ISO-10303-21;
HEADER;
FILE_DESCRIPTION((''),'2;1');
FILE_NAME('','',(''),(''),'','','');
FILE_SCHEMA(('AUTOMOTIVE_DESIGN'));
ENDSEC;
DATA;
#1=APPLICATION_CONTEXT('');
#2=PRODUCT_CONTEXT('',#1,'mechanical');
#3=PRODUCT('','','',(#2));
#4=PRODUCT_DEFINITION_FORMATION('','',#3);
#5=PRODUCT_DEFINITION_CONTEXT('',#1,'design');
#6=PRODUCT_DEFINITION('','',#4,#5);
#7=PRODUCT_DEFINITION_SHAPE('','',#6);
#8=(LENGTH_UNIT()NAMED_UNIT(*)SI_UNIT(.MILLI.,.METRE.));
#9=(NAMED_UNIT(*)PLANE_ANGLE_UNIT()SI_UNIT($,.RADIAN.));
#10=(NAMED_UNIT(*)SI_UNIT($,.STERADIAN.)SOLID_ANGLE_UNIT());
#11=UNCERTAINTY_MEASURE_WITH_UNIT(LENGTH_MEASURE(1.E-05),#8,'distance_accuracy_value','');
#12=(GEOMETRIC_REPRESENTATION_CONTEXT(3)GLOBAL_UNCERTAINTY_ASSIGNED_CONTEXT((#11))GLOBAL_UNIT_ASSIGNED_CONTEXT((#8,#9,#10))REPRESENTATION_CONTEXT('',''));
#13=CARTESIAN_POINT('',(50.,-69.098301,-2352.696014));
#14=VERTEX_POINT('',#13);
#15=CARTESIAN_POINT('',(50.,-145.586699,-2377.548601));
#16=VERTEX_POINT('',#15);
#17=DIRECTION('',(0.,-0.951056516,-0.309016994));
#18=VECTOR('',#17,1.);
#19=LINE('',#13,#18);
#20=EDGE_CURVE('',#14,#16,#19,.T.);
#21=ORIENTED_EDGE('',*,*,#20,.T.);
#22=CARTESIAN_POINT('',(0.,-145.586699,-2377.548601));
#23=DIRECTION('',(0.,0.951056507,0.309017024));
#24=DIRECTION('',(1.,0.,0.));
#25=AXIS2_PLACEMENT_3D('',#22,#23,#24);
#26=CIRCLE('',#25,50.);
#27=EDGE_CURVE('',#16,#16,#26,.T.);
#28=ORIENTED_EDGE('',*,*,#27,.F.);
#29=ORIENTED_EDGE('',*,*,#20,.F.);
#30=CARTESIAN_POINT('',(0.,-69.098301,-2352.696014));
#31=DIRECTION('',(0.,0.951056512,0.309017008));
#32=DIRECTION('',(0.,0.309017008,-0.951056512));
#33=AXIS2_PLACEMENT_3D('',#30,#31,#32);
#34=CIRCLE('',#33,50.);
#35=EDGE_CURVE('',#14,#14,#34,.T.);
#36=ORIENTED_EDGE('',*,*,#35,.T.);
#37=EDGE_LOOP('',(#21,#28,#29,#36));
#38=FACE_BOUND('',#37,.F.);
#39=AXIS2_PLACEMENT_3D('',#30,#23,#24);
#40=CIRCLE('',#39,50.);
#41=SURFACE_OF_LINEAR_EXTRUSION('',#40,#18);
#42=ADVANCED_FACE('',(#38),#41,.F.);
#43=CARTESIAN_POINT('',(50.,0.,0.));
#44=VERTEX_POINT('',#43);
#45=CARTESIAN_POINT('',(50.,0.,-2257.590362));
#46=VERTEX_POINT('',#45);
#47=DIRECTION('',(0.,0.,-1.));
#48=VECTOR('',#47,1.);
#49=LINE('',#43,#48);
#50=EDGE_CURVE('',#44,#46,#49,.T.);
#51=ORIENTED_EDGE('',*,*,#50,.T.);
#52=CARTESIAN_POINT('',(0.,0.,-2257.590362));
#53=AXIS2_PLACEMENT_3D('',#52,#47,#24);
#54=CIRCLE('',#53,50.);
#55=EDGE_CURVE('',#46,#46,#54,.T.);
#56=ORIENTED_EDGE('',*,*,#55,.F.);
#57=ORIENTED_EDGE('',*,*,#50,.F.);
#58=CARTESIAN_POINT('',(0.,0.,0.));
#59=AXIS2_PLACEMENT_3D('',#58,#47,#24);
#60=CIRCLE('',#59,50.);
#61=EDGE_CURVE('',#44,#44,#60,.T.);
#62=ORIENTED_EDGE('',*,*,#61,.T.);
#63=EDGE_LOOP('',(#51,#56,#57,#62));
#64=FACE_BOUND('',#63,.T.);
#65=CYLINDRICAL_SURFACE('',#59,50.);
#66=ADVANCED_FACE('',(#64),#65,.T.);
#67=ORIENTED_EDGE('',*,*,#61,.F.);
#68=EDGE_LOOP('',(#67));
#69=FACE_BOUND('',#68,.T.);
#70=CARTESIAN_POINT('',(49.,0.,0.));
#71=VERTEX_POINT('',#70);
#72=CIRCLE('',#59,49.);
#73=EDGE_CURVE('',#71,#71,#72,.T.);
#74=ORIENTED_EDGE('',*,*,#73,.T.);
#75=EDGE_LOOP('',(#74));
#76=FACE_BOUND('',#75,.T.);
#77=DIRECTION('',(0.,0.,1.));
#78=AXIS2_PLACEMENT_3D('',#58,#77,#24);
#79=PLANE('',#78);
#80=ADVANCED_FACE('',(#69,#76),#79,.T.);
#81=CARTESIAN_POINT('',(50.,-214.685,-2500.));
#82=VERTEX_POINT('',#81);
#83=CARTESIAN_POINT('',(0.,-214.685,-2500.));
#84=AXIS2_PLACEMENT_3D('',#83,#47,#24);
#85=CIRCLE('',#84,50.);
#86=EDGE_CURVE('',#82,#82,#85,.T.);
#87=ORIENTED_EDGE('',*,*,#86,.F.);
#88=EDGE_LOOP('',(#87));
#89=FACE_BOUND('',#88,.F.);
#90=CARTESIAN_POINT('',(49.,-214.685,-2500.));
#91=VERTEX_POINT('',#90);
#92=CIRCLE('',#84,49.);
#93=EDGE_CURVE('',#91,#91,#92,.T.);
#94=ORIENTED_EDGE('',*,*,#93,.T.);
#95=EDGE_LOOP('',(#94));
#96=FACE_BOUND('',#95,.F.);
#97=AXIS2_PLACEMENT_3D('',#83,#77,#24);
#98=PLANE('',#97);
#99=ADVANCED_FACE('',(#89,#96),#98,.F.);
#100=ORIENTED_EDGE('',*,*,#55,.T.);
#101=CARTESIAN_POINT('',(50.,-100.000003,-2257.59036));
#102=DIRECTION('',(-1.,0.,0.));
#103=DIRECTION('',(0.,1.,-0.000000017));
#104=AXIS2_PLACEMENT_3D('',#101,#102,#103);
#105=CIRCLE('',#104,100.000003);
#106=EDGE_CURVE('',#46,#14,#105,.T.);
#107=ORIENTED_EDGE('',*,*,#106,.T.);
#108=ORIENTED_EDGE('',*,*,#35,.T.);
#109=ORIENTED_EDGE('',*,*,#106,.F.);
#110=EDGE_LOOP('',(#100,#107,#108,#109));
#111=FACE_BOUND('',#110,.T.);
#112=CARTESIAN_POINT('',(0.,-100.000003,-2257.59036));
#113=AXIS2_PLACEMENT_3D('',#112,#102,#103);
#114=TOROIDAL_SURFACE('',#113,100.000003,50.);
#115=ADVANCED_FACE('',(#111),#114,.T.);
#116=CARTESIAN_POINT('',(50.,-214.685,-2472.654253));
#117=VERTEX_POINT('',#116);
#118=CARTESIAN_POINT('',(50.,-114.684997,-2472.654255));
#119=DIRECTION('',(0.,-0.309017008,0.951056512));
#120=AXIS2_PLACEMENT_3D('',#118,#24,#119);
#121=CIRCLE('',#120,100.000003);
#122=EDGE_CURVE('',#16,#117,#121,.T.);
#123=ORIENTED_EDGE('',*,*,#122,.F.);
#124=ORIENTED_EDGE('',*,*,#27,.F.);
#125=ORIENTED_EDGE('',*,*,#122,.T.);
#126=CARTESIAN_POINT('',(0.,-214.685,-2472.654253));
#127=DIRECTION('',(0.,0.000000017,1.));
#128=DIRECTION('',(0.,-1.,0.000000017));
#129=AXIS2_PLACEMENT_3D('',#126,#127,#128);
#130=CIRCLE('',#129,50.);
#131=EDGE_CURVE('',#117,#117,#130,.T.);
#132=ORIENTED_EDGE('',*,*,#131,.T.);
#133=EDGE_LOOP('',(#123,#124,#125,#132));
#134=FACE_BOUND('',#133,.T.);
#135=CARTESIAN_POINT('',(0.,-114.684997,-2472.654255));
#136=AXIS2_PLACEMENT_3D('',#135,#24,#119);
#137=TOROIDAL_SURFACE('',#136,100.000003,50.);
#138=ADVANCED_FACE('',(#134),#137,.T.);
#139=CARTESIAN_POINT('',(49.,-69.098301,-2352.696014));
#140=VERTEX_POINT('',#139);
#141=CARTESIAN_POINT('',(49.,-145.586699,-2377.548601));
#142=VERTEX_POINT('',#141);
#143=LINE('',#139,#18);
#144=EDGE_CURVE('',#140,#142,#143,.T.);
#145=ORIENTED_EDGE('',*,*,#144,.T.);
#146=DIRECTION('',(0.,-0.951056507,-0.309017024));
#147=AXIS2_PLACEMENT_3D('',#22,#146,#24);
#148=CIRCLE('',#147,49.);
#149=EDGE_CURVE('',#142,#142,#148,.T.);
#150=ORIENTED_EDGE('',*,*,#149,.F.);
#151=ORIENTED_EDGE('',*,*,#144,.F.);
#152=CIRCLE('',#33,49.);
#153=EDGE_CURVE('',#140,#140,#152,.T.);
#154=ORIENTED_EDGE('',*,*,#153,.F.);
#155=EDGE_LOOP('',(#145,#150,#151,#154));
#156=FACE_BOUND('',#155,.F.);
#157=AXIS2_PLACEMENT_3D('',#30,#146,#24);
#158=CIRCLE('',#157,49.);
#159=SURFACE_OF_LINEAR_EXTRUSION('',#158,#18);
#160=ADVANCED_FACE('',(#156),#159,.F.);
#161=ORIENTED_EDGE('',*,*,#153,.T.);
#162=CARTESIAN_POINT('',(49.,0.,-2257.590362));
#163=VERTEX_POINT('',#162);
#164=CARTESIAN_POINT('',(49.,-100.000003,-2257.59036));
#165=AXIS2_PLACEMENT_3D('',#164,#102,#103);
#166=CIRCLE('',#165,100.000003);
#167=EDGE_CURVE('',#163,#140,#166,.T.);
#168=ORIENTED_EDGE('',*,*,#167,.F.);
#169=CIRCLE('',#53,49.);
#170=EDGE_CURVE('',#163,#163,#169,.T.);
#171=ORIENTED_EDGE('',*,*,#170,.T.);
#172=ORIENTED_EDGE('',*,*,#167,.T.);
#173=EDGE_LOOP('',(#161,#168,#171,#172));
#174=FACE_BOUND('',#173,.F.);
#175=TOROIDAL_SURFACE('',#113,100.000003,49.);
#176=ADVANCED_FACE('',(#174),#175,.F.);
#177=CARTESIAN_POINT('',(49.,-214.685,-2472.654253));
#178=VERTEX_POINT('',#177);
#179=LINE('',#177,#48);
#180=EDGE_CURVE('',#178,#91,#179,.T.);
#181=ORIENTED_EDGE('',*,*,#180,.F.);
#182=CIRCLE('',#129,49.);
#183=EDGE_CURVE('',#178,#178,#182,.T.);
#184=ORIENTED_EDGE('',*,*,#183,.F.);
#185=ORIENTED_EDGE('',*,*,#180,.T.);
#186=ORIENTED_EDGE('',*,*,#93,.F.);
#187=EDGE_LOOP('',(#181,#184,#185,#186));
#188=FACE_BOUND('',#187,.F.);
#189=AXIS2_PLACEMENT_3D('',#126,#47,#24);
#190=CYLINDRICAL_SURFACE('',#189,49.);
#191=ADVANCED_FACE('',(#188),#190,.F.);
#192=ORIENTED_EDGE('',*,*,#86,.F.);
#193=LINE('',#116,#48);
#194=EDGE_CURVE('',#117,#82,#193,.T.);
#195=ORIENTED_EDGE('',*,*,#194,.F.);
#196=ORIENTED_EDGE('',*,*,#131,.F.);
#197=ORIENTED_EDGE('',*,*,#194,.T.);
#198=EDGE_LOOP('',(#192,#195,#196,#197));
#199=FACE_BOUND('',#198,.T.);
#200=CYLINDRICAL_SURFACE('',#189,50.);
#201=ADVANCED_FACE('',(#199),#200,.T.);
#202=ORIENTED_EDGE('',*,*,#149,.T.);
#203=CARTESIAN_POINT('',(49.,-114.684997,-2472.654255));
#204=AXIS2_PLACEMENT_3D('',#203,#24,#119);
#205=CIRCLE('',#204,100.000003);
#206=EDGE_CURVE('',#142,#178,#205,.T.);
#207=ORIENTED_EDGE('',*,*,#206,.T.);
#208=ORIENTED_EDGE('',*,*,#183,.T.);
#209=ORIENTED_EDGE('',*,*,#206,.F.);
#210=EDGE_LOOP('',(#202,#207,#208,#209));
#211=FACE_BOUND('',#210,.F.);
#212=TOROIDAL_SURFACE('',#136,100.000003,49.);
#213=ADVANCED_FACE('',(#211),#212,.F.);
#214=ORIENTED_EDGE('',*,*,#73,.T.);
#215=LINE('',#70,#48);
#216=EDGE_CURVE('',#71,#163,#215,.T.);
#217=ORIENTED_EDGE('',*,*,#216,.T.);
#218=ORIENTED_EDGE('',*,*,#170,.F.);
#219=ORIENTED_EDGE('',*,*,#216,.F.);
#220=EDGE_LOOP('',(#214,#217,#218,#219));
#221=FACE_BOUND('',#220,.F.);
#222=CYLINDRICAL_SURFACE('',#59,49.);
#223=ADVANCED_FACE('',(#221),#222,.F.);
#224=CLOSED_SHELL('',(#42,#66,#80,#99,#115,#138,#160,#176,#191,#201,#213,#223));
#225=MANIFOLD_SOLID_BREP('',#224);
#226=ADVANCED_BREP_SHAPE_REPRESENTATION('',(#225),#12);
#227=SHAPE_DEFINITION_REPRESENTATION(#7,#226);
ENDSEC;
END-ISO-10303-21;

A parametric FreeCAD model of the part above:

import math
import FreeCAD as App
import Part
import Sketcher
Q = App.Units.Quantity

doc = App.newDocument("Part")
body = doc.addObject("PartDesign::Body", "Body")

# Sketch on XY plane
sketch1 = body.newObject("Sketcher::SketchObject", "Sketch")
sketch1.AttachmentSupport = (doc.getObject("XY_Plane"), [""])
sketch1.MapMode = "FlatFace"
sketch1.addGeometry([
    Part.Circle(App.Vector(0, 0, 0), App.Vector(0, 0, 1), 50),
    Part.Circle(App.Vector(0, 0, 0), App.Vector(0, 0, 1), 49),
], False)
sketch1.addConstraint([
    Sketcher.Constraint("Coincident", 0, 3, -1, 1),
    Sketcher.Constraint("Coincident", 1, 3, -1, 1),
    Sketcher.Constraint("Diameter", 0, 100.0),
    Sketcher.Constraint("Diameter", 1, 98.0),
])

# Sketch on YZ plane
sketch2 = body.newObject("Sketcher::SketchObject", "Sketch001")
sketch2.AttachmentSupport = (doc.getObject("YZ_Plane"), [""])
sketch2.MapMode = "FlatFace"
sketch2.addGeometry([
    Part.LineSegment(App.Vector(0, 0, 0), App.Vector(0, -2258, 0)),  # 0
    Part.ArcOfCircle(Part.Circle(App.Vector(-100, -2258, 0), App.Vector(0, 0, 1), 100), math.radians(-72), math.radians(0)),  # 1
    Part.LineSegment(App.Vector(-69, -2353, 0), App.Vector(-146, -2378, 0)),  # 2
    Part.ArcOfCircle(Part.Circle(App.Vector(-115, -2473, 0), App.Vector(0, 0, 1), 100), math.radians(108), math.radians(180)),  # 3
    Part.LineSegment(App.Vector(-215, -2473, 0), App.Vector(-215, -2500, 0)),  # 4
], False)
sketch2.addConstraint([
    Sketcher.Constraint("Tangent", 0, 2, 1, 2),
    Sketcher.Constraint("Tangent", 1, 1, 2, 1),
    Sketcher.Constraint("Tangent", 2, 2, 3, 1),
    Sketcher.Constraint("Tangent", 3, 2, 4, 1),
    Sketcher.Constraint("Vertical", 0),
    Sketcher.Constraint("Vertical", 4),
    Sketcher.Constraint("Coincident", 0, 1, -1, 1),
    Sketcher.Constraint("Equal", 1, 3),
    Sketcher.Constraint("Angle", 2, Q("-162 deg")),
    Sketcher.Constraint("DistanceY", 4, 2, -1, 1, 2500.0),
    Sketcher.Constraint("DistanceX", 3, 2, -1, 1, 214.685),
    Sketcher.Constraint("Radius", 1, 100.000003),
    Sketcher.Constraint("DistanceY", 0, 2, 0, 1, 2257.590362),
])
doc.recompute()

additivepipe = body.newObject("PartDesign::AdditivePipe", "AdditivePipe")
additivepipe.Profile = sketch1
additivepipe.Spine = (sketch2, ["Edge1", "Edge2", "Edge3", "Edge4", "Edge5"])

doc.recompute()
